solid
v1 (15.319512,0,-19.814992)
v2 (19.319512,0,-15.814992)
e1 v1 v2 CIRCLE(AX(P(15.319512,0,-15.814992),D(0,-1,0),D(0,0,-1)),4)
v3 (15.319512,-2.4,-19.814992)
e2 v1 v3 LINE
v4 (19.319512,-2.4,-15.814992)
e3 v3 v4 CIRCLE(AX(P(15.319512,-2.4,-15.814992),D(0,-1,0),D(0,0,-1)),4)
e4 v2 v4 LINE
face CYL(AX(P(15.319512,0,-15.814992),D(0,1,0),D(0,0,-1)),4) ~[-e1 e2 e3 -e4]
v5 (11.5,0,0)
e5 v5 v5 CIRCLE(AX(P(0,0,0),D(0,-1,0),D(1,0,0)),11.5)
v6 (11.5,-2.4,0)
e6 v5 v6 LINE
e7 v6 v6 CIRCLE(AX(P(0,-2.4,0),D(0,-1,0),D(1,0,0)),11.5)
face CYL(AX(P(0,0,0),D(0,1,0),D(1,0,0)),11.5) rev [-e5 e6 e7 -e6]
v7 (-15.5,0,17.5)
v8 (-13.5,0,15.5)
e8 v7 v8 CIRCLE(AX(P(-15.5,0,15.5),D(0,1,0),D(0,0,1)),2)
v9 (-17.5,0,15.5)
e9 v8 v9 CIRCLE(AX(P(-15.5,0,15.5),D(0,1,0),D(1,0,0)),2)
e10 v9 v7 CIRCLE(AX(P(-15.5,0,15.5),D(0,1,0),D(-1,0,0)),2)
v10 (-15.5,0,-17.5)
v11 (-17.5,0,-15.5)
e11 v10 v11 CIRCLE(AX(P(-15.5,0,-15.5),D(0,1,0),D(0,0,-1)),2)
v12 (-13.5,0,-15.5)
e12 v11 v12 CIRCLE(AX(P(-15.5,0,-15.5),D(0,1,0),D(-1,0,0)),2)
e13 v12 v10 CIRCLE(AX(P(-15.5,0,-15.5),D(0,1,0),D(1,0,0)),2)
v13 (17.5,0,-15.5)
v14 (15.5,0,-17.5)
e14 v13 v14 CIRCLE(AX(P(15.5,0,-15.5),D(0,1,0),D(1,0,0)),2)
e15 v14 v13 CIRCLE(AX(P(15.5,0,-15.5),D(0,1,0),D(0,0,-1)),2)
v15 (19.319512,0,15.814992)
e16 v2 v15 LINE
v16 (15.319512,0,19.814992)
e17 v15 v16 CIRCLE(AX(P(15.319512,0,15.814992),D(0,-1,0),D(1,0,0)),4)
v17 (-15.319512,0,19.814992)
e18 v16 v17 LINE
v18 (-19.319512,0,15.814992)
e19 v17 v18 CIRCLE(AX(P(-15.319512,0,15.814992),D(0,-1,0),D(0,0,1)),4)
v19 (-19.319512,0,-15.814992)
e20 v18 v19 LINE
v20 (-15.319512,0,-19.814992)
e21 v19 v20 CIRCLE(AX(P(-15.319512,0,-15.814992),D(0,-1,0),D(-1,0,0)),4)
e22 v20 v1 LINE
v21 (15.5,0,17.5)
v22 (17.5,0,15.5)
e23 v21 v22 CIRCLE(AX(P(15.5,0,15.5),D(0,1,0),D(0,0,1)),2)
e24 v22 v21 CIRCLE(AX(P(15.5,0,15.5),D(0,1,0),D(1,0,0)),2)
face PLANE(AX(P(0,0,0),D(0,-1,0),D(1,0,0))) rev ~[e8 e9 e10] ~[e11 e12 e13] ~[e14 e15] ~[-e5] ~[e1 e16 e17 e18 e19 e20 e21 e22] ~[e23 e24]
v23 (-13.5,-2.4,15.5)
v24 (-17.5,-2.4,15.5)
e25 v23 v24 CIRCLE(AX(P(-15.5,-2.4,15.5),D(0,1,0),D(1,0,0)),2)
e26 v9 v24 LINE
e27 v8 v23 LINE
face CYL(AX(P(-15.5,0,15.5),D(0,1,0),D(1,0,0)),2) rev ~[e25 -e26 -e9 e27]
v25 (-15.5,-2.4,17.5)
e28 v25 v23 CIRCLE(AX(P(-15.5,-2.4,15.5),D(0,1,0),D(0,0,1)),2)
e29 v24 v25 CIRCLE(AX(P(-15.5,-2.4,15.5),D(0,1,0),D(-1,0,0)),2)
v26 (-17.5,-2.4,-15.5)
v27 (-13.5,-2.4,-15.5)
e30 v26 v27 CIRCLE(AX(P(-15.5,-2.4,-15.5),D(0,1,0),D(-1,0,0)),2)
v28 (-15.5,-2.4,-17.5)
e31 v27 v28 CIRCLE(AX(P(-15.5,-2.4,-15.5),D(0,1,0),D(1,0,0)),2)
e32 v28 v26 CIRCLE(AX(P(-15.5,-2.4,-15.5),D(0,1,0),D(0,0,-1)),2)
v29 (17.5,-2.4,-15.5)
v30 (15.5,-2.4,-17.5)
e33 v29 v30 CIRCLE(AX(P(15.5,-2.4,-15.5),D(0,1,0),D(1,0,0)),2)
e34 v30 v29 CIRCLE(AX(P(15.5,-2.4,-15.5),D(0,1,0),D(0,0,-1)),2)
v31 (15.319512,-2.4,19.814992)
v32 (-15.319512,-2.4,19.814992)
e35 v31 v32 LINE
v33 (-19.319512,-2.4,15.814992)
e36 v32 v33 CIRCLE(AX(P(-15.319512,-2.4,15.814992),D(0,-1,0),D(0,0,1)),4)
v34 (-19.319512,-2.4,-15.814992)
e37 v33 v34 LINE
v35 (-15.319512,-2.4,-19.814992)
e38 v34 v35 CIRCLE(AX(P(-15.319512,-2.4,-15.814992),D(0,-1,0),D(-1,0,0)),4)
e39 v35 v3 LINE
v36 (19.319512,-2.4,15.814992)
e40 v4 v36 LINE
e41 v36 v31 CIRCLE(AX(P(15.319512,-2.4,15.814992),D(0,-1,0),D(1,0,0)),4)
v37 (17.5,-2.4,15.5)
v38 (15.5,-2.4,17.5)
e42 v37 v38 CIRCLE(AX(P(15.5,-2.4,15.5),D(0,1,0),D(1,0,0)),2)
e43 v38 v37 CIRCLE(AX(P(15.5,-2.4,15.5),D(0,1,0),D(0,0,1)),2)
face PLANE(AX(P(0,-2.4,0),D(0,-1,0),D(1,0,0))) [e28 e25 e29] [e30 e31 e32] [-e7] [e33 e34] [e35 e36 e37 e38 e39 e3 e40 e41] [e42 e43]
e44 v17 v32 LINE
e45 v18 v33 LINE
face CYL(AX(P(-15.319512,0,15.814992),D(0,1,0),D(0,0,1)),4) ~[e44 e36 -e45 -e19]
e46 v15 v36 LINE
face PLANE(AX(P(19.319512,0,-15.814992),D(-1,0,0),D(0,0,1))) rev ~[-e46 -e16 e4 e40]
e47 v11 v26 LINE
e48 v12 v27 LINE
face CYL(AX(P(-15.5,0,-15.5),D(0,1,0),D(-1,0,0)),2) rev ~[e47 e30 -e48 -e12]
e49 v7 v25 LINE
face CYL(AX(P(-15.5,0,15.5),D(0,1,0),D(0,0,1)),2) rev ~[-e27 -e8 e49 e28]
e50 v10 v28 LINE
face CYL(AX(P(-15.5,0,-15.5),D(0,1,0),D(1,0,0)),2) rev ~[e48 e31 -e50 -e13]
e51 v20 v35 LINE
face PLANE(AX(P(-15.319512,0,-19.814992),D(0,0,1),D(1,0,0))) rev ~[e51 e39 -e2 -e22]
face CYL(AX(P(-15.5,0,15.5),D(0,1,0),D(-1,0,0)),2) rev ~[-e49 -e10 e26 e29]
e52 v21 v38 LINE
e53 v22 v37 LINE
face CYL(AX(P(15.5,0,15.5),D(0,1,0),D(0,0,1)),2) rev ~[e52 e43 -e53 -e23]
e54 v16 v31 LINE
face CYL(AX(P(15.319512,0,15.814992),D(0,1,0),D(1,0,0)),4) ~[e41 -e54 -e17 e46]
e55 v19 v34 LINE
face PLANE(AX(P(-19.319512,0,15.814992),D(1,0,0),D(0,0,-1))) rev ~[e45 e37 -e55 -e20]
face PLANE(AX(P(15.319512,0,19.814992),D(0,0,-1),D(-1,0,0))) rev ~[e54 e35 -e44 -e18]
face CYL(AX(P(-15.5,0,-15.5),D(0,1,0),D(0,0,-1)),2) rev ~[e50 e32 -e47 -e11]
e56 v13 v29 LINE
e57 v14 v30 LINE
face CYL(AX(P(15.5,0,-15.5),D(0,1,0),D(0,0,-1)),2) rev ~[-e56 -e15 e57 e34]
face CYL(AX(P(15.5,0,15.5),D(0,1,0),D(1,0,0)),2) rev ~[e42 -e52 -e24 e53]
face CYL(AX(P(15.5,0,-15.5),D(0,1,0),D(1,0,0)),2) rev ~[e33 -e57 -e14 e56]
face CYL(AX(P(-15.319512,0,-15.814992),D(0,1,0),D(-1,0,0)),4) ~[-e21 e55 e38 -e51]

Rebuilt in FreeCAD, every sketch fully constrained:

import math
import FreeCAD as App
import Part
import Sketcher

V = App.Vector

doc = App.newDocument("Part")
body = doc.addObject("PartDesign::Body", "Body")

sketch1 = body.newObject("Sketcher::SketchObject", "Sketch")
sketch1.AttachmentSupport = (doc.getObject("XZ_Plane"), [""])
sketch1.MapMode = "FlatFace"
sketch1.addGeometry([
    Part.LineSegment(V(15.3, 19.8, 0), V(-15.3, 19.8, 0)),
    Part.ArcOfCircle(Part.Circle(V(-15.3, 15.8, 0), V(0, 0, 1), 4), math.radians(90), math.radians(180)),
    Part.LineSegment(V(-19.3, 15.8, 0), V(-19.3, -15.8, 0)),
    Part.ArcOfCircle(Part.Circle(V(-15.3, -15.8, 0), V(0, 0, 1), 4), math.radians(180), math.radians(270)),
    Part.LineSegment(V(-15.3, -19.8, 0), V(15.3, -19.8, 0)),
    Part.ArcOfCircle(Part.Circle(V(15.3, -15.8, 0), V(0, 0, 1), 4), math.radians(-90), math.radians(0)),
    Part.LineSegment(V(19.3, -15.8, 0), V(19.3, 15.8, 0)),
    Part.ArcOfCircle(Part.Circle(V(15.3, 15.8, 0), V(0, 0, 1), 4), math.radians(0), math.radians(90)),
    Part.ArcOfCircle(Part.Circle(V(-15.5, -15.5, 0), V(0, 0, 1), 2), math.radians(180), math.radians(270)),
    Part.ArcOfCircle(Part.Circle(V(-15.5, -15.5, 0), V(0, 0, 1), 2), math.radians(0), math.radians(180)),
    Part.ArcOfCircle(Part.Circle(V(-15.5, -15.5, 0), V(0, 0, 1), 2), math.radians(-90), math.radians(0)),
    Part.ArcOfCircle(Part.Circle(V(15.5, -15.5, 0), V(0, 0, 1), 2), math.radians(-90), math.radians(0)),
    Part.ArcOfCircle(Part.Circle(V(15.5, -15.5, 0), V(0, 0, 1), 2), math.radians(0), math.radians(270)),
    Part.ArcOfCircle(Part.Circle(V(-15.5, 15.5, 0), V(0, 0, 1), 2), math.radians(90), math.radians(180)),
    Part.ArcOfCircle(Part.Circle(V(-15.5, 15.5, 0), V(0, 0, 1), 2), math.radians(0), math.radians(90)),
    Part.ArcOfCircle(Part.Circle(V(-15.5, 15.5, 0), V(0, 0, 1), 2), math.radians(180), math.radians(360)),
    Part.Circle(V(0, 0, 0), V(0, 0, 1), 11.5),
    Part.ArcOfCircle(Part.Circle(V(15.5, 15.5, 0), V(0, 0, 1), 2), math.radians(0), math.radians(90)),
    Part.ArcOfCircle(Part.Circle(V(15.5, 15.5, 0), V(0, 0, 1), 2), math.radians(90), math.radians(360)),
], False)
sketch1.addConstraint([
    Sketcher.Constraint("Tangent", 0, 2, 1, 1),
    Sketcher.Constraint("Tangent", 1, 2, 2, 1),
    Sketcher.Constraint("Tangent", 2, 2, 3, 1),
    Sketcher.Constraint("Tangent", 3, 2, 4, 1),
    Sketcher.Constraint("Tangent", 4, 2, 5, 1),
    Sketcher.Constraint("Tangent", 5, 2, 6, 1),
    Sketcher.Constraint("Tangent", 6, 2, 7, 1),
    Sketcher.Constraint("Tangent", 7, 2, 0, 1),
    Sketcher.Constraint("Tangent", 8, 1, 9, 2),
    Sketcher.Constraint("Tangent", 9, 1, 10, 2),
    Sketcher.Constraint("Tangent", 10, 1, 8, 2),
    Sketcher.Constraint("Tangent", 11, 1, 12, 2),
    Sketcher.Constraint("Coincident", 12, 1, 11, 2),
    Sketcher.Constraint("Tangent", 13, 1, 14, 2),
    Sketcher.Constraint("Tangent", 14, 1, 15, 2),
    Sketcher.Constraint("Tangent", 15, 1, 13, 2),
    Sketcher.Constraint("Tangent", 17, 1, 18, 2),
    Sketcher.Constraint("Coincident", 18, 1, 17, 2),
    Sketcher.Constraint("Horizontal", 0),
    Sketcher.Constraint("Vertical", 2),
    Sketcher.Constraint("Horizontal", 4),
    Sketcher.Constraint("Vertical", 6),
    Sketcher.Constraint("Coincident", 16, 3, -1, 1),
    Sketcher.Constraint("Equal", 1, 3),
    Sketcher.Constraint("Equal", 3, 5),
    Sketcher.Constraint("Equal", 5, 7),
    Sketcher.Constraint("Equal", 10, 11),
    Sketcher.Constraint("Equal", 12, 13),
    Sketcher.Constraint("Equal", 15, 17),
    Sketcher.Constraint("Symmetric", 1, 3, 5, 3, -1, 1),
    Sketcher.Constraint("Symmetric", 11, 3, 13, 3, -1, 1),
    Sketcher.Constraint("Symmetric", 8, 3, 17, 3, -1, 1),
    Sketcher.Constraint("Symmetric", 8, 3, 11, 3, -2),
    Sketcher.Constraint("Horizontal", 12, 3, 8, 1),
    Sketcher.Constraint("Horizontal", 8, 1, 9, 1),
    Sketcher.Constraint("Horizontal", 9, 1, 12, 1),
    Sketcher.Constraint("Horizontal", 18, 3, 14, 1),
    Sketcher.Constraint("Horizontal", 14, 1, 15, 1),
    Sketcher.Constraint("Horizontal", 15, 1, 17, 1),
    Sketcher.Constraint("Vertical", 15, 3, 10, 1),
    Sketcher.Constraint("Vertical", 18, 3, 11, 1),
    Sketcher.Constraint("Vertical", 10, 1, 13, 1),
    Sketcher.Constraint("Vertical", 11, 1, 18, 1),
    Sketcher.Constraint("Diameter", 16, 23.0),
    Sketcher.Constraint("Radius", 1, 4.0),
    Sketcher.Constraint("Radius", 8, 2.0),
    Sketcher.Constraint("DistanceX", 8, 3, 11, 3, 31.0),
    Sketcher.Constraint("DistanceY", 8, 3, 13, 3, 31.0),
    Sketcher.Constraint("DistanceX", 0, 2, 0, 1, 30.639024),
    Sketcher.Constraint("DistanceY", 2, 2, 2, 1, 31.629985),
])
pad1 = body.newObject("PartDesign::Pad", "Pad")
pad1.Profile = sketch1
pad1.Length = 2.4

doc.recompute()
